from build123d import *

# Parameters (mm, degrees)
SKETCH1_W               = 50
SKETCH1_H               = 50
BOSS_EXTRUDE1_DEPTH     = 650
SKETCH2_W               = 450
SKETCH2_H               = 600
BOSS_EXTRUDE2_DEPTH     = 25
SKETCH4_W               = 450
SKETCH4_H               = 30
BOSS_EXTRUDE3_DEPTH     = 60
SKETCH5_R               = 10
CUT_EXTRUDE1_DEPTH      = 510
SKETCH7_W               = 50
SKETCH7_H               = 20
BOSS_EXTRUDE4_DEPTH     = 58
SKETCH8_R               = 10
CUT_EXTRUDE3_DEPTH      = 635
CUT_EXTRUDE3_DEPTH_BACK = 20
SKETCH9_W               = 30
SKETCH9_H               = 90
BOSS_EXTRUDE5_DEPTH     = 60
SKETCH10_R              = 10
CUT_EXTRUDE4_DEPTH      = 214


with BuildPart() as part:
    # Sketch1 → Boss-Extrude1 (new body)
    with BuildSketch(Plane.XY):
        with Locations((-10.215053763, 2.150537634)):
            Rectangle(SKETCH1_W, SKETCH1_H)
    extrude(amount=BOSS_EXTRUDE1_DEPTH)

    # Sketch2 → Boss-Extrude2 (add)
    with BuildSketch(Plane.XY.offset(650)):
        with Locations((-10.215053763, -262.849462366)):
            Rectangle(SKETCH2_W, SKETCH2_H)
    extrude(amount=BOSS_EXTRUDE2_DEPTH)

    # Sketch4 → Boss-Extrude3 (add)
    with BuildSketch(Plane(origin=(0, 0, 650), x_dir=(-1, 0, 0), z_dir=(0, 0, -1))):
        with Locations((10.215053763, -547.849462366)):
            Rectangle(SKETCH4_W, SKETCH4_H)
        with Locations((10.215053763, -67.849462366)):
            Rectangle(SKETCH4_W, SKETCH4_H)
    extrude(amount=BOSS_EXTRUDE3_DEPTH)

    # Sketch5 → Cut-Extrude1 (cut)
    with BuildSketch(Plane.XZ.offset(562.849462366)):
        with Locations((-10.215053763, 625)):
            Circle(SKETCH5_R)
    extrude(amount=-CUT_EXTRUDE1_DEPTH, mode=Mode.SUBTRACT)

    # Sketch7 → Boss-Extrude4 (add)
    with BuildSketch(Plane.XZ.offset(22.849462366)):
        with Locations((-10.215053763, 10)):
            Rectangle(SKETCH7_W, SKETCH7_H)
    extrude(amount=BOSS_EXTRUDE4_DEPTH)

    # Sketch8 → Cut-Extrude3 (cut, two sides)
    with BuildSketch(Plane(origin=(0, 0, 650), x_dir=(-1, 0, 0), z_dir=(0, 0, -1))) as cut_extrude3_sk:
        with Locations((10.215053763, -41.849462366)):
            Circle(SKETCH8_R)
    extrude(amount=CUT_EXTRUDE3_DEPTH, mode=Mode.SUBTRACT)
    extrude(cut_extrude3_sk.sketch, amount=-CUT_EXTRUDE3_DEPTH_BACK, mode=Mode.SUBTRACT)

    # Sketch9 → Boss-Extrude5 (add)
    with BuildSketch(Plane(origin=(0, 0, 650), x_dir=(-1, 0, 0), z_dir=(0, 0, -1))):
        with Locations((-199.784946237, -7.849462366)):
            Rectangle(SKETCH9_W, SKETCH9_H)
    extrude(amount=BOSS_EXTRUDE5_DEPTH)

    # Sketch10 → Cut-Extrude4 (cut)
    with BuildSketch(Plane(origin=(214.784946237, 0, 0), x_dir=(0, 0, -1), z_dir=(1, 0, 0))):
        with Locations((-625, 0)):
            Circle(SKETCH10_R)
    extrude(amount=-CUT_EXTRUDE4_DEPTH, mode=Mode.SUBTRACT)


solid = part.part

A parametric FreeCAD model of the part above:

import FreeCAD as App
import Part
import Sketcher
from FreeCAD import Vector

doc = App.newDocument("Part")
body = doc.addObject("PartDesign::Body", "Body")

sketch1 = body.newObject("Sketcher::SketchObject", "Sketch")
sketch1.AttachmentSupport = (doc.getObject("XY_Plane"), [""])
sketch1.MapMode = "FlatFace"
sketch1.addGeometry(Part.LineSegment(Vector(-35.215054, 27.150538, 0), Vector(-35.215054, -22.849462, 0)), False)
sketch1.addGeometry(Part.LineSegment(Vector(-35.215054, -22.849462, 0), Vector(14.784946, -22.849462, 0)), False)
sketch1.addGeometry(Part.LineSegment(Vector(14.784946, -22.849462, 0), Vector(14.784946, 27.150538, 0)), False)
sketch1.addGeometry(Part.LineSegment(Vector(14.784946, 27.150538, 0), Vector(-35.215054, 27.150538, 0)), False)
sketch1.addConstraint(Sketcher.Constraint("Coincident", 0, 2, 1, 1))
sketch1.addConstraint(Sketcher.Constraint("Coincident", 1, 2, 2, 1))
sketch1.addConstraint(Sketcher.Constraint("Coincident", 2, 2, 3, 1))
sketch1.addConstraint(Sketcher.Constraint("Coincident", 3, 2, 0, 1))
sketch1.addConstraint(Sketcher.Constraint("Vertical", 0))
sketch1.addConstraint(Sketcher.Constraint("Horizontal", 1))
sketch1.addConstraint(Sketcher.Constraint("Vertical", 2))
sketch1.addConstraint(Sketcher.Constraint("Horizontal", 3))
sketch1.addConstraint(Sketcher.Constraint("Equal", 3, 0))
sketch1.addConstraint(Sketcher.Constraint("DistanceX", 1, 1, 1, 2, 50.0))
sketch1.addConstraint(Sketcher.Constraint("DistanceX", 0, 2, -1, 1, 35.215054))
sketch1.addConstraint(Sketcher.Constraint("DistanceY", 0, 2, -1, 1, 22.849462))
pad1 = body.newObject("PartDesign::Pad", "Pad")
pad1.Profile = sketch1
pad1.Length = 650

sketch2 = body.newObject("Sketcher::SketchObject", "Sketch001")
sketch2.AttachmentSupport = (doc.getObject("XY_Plane"), [""])
sketch2.MapMode = "FlatFace"
sketch2.AttachmentOffset = App.Placement(Vector(0, 0, 650), App.Rotation())
sketch2.addGeometry(Part.LineSegment(Vector(-235.215054, 37.150538, 0), Vector(-235.215054, -562.849462, 0)), False)
sketch2.addGeometry(Part.LineSegment(Vector(-235.215054, -562.849462, 0), Vector(214.784946, -562.849462, 0)), False)
sketch2.addGeometry(Part.LineSegment(Vector(214.784946, -562.849462, 0), Vector(214.784946, 37.150538, 0)), False)
sketch2.addGeometry(Part.LineSegment(Vector(214.784946, 37.150538, 0), Vector(-235.215054, 37.150538, 0)), False)
sketch2.addConstraint(Sketcher.Constraint("Coincident", 0, 2, 1, 1))
sketch2.addConstraint(Sketcher.Constraint("Coincident", 1, 2, 2, 1))
sketch2.addConstraint(Sketcher.Constraint("Coincident", 2, 2, 3, 1))
sketch2.addConstraint(Sketcher.Constraint("Coincident", 3, 2, 0, 1))
sketch2.addConstraint(Sketcher.Constraint("Vertical", 0))
sketch2.addConstraint(Sketcher.Constraint("Horizontal", 1))
sketch2.addConstraint(Sketcher.Constraint("Vertical", 2))
sketch2.addConstraint(Sketcher.Constraint("Horizontal", 3))
sketch2.addConstraint(Sketcher.Constraint("DistanceX", 1, 1, 1, 2, 450.0))
sketch2.addConstraint(Sketcher.Constraint("DistanceY", 0, 2, 0, 1, 600.0))
sketch2.addConstraint(Sketcher.Constraint("DistanceX", 0, 2, -1, 1, 235.215054))
sketch2.addConstraint(Sketcher.Constraint("DistanceY", 0, 2, -1, 1, 562.849462))
pad2 = body.newObject("PartDesign::Pad", "Pad001")
pad2.Profile = sketch2
pad2.Length = 25

sketch3 = body.newObject("Sketcher::SketchObject", "Sketch002")
sketch3.AttachmentSupport = (doc.getObject("XY_Plane"), [""])
sketch3.MapMode = "FlatFace"
sketch3.AttachmentOffset = App.Placement(Vector(0, 0, 650), App.Rotation())
sketch3.addGeometry(Part.LineSegment(Vector(214.784946, -532.849462, 0), Vector(214.784946, -562.849462, 0)), False)
sketch3.addGeometry(Part.LineSegment(Vector(214.784946, -562.849462, 0), Vector(-235.215054, -562.849462, 0)), False)
sketch3.addGeometry(Part.LineSegment(Vector(-235.215054, -562.849462, 0), Vector(-235.215054, -532.849462, 0)), False)
sketch3.addGeometry(Part.LineSegment(Vector(-235.215054, -532.849462, 0), Vector(214.784946, -532.849462, 0)), False)
sketch3.addGeometry(Part.LineSegment(Vector(214.784946, -52.849462, 0), Vector(214.784946, -82.849462, 0)), False)
sketch3.addGeometry(Part.LineSegment(Vector(214.784946, -82.849462, 0), Vector(-235.215054, -82.849462, 0)), False)
sketch3.addGeometry(Part.LineSegment(Vector(-235.215054, -82.849462, 0), Vector(-235.215054, -52.849462, 0)), False)
sketch3.addGeometry(Part.LineSegment(Vector(-235.215054, -52.849462, 0), Vector(214.784946, -52.849462, 0)), False)
sketch3.addConstraint(Sketcher.Constraint("Coincident", 0, 2, 1, 1))
sketch3.addConstraint(Sketcher.Constraint("Coincident", 1, 2, 2, 1))
sketch3.addConstraint(Sketcher.Constraint("Coincident", 2, 2, 3, 1))
sketch3.addConstraint(Sketcher.Constraint("Coincident", 3, 2, 0, 1))
sketch3.addConstraint(Sketcher.Constraint("Coincident", 4, 2, 5, 1))
sketch3.addConstraint(Sketcher.Constraint("Coincident", 5, 2, 6, 1))
sketch3.addConstraint(Sketcher.Constraint("Coincident", 6, 2, 7, 1))
sketch3.addConstraint(Sketcher.Constraint("Coincident", 7, 2, 4, 1))
sketch3.addConstraint(Sketcher.Constraint("Vertical", 0))
sketch3.addConstraint(Sketcher.Constraint("Horizontal", 1))
sketch3.addConstraint(Sketcher.Constraint("Vertical", 2))
sketch3.addConstraint(Sketcher.Constraint("Horizontal", 3))
sketch3.addConstraint(Sketcher.Constraint("Vertical", 4))
sketch3.addConstraint(Sketcher.Constraint("Horizontal", 5))
sketch3.addConstraint(Sketcher.Constraint("Vertical", 6))
sketch3.addConstraint(Sketcher.Constraint("Horizontal", 7))
sketch3.addConstraint(Sketcher.Constraint("Vertical", 3, 2, 4, 2))
sketch3.addConstraint(Sketcher.Constraint("Vertical", 2, 2, 5, 2))
sketch3.addConstraint(Sketcher.Constraint("Equal", 2, 4))
sketch3.addConstraint(Sketcher.Constraint("DistanceX", 1, 2, 1, 1, 450.0))
sketch3.addConstraint(Sketcher.Constraint("DistanceY", 0, 2, 0, 1, 30.0))
sketch3.addConstraint(Sketcher.Constraint("DistanceY", 3, 2, 4, 2, 450.0))
sketch3.addConstraint(Sketcher.Constraint("DistanceX", -1, 1, 0, 2, 214.784946))
sketch3.addConstraint(Sketcher.Constraint("DistanceY", 0, 2, -1, 1, 562.849462))
pad3 = body.newObject("PartDesign::Pad", "Pad002")
pad3.Profile = sketch3
pad3.Length = 60
pad3.Reversed = True

sketch4 = body.newObject("Sketcher::SketchObject", "Sketch003")
sketch4.AttachmentSupport = (doc.getObject("XZ_Plane"), [""])
sketch4.MapMode = "FlatFace"
sketch4.AttachmentOffset = App.Placement(Vector(0, 0, 562.849462), App.Rotation())
sketch4.addGeometry(Part.Circle(Vector(-10.215054, 625, 0), Vector(0, 0, 1), 10), False)
sketch4.addConstraint(Sketcher.Constraint("Diameter", 0, 20.0))
sketch4.addConstraint(Sketcher.Constraint("DistanceY", -1, 1, 0, 3, 625.0))
sketch4.addConstraint(Sketcher.Constraint("DistanceX", 0, 3, -1, 1, 10.215054))
pocket1 = body.newObject("PartDesign::Pocket", "Pocket")
pocket1.Profile = sketch4
pocket1.Length = 510

sketch5 = body.newObject("Sketcher::SketchObject", "Sketch004")
sketch5.AttachmentSupport = (doc.getObject("XZ_Plane"), [""])
sketch5.MapMode = "FlatFace"
sketch5.AttachmentOffset = App.Placement(Vector(0, 0, 22.849462), App.Rotation())
sketch5.addGeometry(Part.LineSegment(Vector(-35.215054, 20, 0), Vector(-35.215054, 0, 0)), False)
sketch5.addGeometry(Part.LineSegment(Vector(-35.215054, 0, 0), Vector(14.784946, 0, 0)), False)
sketch5.addGeometry(Part.LineSegment(Vector(14.784946, 0, 0), Vector(14.784946, 20, 0)), False)
sketch5.addGeometry(Part.LineSegment(Vector(14.784946, 20, 0), Vector(-35.215054, 20, 0)), False)
sketch5.addConstraint(Sketcher.Constraint("Coincident", 0, 2, 1, 1))
sketch5.addConstraint(Sketcher.Constraint("Coincident", 1, 2, 2, 1))
sketch5.addConstraint(Sketcher.Constraint("Coincident", 2, 2, 3, 1))
sketch5.addConstraint(Sketcher.Constraint("Coincident", 3, 2, 0, 1))
sketch5.addConstraint(Sketcher.Constraint("Vertical", 0))
sketch5.addConstraint(Sketcher.Constraint("Horizontal", 1))
sketch5.addConstraint(Sketcher.Constraint("Vertical", 2))
sketch5.addConstraint(Sketcher.Constraint("Horizontal", 3))
sketch5.addConstraint(Sketcher.Constraint("PointOnObject", 0, 2, -1))
sketch5.addConstraint(Sketcher.Constraint("DistanceX", 1, 1, 1, 2, 50.0))
sketch5.addConstraint(Sketcher.Constraint("DistanceY", 0, 2, 0, 1, 20.0))
sketch5.addConstraint(Sketcher.Constraint("DistanceX", 0, 2, -1, 1, 35.215054))
pad4 = body.newObject("PartDesign::Pad", "Pad003")
pad4.Profile = sketch5
pad4.Length = 58

sketch6 = body.newObject("Sketcher::SketchObject", "Sketch005")
sketch6.AttachmentSupport = (doc.getObject("XY_Plane"), [""])
sketch6.MapMode = "FlatFace"
sketch6.AttachmentOffset = App.Placement(Vector(0, 0, 650), App.Rotation())
sketch6.addGeometry(Part.Circle(Vector(-10.215054, -41.849462, 0), Vector(0, 0, 1), 10), False)
sketch6.addConstraint(Sketcher.Constraint("Diameter", 0, 20.0))
sketch6.addConstraint(Sketcher.Constraint("DistanceX", 0, 3, -1, 1, 10.215054))
sketch6.addConstraint(Sketcher.Constraint("DistanceY", 0, 3, -1, 1, 41.849462))
pocket2 = body.newObject("PartDesign::Pocket", "Pocket001")
pocket2.Profile = sketch6
pocket2.Type = "TwoLengths"
pocket2.Length = 635
pocket2.Length2 = 20

sketch7 = body.newObject("Sketcher::SketchObject", "Sketch006")
sketch7.AttachmentSupport = (doc.getObject("XY_Plane"), [""])
sketch7.MapMode = "FlatFace"
sketch7.AttachmentOffset = App.Placement(Vector(0, 0, 650), App.Rotation())
sketch7.addGeometry(Part.LineSegment(Vector(214.784946, 37.150538, 0), Vector(214.784946, -52.849462, 0)), False)
sketch7.addGeometry(Part.LineSegment(Vector(214.784946, -52.849462, 0), Vector(184.784946, -52.849462, 0)), False)
sketch7.addGeometry(Part.LineSegment(Vector(184.784946, -52.849462, 0), Vector(184.784946, 37.150538, 0)), False)
sketch7.addGeometry(Part.LineSegment(Vector(184.784946, 37.150538, 0), Vector(214.784946, 37.150538, 0)), False)
sketch7.addConstraint(Sketcher.Constraint("Coincident", 0, 2, 1, 1))
sketch7.addConstraint(Sketcher.Constraint("Coincident", 1, 2, 2, 1))
sketch7.addConstraint(Sketcher.Constraint("Coincident", 2, 2, 3, 1))
sketch7.addConstraint(Sketcher.Constraint("Coincident", 3, 2, 0, 1))
sketch7.addConstraint(Sketcher.Constraint("Vertical", 0))
sketch7.addConstraint(Sketcher.Constraint("Horizontal", 1))
sketch7.addConstraint(Sketcher.Constraint("Vertical", 2))
sketch7.addConstraint(Sketcher.Constraint("Horizontal", 3))
sketch7.addConstraint(Sketcher.Constraint("DistanceX", 1, 2, 1, 1, 30.0))
sketch7.addConstraint(Sketcher.Constraint("DistanceY", 0, 2, 0, 1, 90.0))
sketch7.addConstraint(Sketcher.Constraint("DistanceX", -1, 1, 0, 2, 214.784946))
sketch7.addConstraint(Sketcher.Constraint("DistanceY", 0, 2, -1, 1, 52.849462))
pad5 = body.newObject("PartDesign::Pad", "Pad004")
pad5.Profile = sketch7
pad5.Length = 60
pad5.Reversed = True

sketch8 = body.newObject("Sketcher::SketchObject", "Sketch007")
sketch8.AttachmentSupport = (doc.getObject("YZ_Plane"), [""])
sketch8.MapMode = "FlatFace"
sketch8.AttachmentOffset = App.Placement(Vector(0, 0, 214.784946), App.Rotation())
sketch8.addGeometry(Part.Circle(Vector(0, 625, 0), Vector(0, 0, 1), 10), False)
sketch8.addConstraint(Sketcher.Constraint("PointOnObject", 0, 3, -2))
sketch8.addConstraint(Sketcher.Constraint("Diameter", 0, 20.0))
sketch8.addConstraint(Sketcher.Constraint("DistanceY", -1, 1, 0, 3, 625.0))
pocket3 = body.newObject("PartDesign::Pocket", "Pocket002")
pocket3.Profile = sketch8
pocket3.Length = 214

doc.recompute()
